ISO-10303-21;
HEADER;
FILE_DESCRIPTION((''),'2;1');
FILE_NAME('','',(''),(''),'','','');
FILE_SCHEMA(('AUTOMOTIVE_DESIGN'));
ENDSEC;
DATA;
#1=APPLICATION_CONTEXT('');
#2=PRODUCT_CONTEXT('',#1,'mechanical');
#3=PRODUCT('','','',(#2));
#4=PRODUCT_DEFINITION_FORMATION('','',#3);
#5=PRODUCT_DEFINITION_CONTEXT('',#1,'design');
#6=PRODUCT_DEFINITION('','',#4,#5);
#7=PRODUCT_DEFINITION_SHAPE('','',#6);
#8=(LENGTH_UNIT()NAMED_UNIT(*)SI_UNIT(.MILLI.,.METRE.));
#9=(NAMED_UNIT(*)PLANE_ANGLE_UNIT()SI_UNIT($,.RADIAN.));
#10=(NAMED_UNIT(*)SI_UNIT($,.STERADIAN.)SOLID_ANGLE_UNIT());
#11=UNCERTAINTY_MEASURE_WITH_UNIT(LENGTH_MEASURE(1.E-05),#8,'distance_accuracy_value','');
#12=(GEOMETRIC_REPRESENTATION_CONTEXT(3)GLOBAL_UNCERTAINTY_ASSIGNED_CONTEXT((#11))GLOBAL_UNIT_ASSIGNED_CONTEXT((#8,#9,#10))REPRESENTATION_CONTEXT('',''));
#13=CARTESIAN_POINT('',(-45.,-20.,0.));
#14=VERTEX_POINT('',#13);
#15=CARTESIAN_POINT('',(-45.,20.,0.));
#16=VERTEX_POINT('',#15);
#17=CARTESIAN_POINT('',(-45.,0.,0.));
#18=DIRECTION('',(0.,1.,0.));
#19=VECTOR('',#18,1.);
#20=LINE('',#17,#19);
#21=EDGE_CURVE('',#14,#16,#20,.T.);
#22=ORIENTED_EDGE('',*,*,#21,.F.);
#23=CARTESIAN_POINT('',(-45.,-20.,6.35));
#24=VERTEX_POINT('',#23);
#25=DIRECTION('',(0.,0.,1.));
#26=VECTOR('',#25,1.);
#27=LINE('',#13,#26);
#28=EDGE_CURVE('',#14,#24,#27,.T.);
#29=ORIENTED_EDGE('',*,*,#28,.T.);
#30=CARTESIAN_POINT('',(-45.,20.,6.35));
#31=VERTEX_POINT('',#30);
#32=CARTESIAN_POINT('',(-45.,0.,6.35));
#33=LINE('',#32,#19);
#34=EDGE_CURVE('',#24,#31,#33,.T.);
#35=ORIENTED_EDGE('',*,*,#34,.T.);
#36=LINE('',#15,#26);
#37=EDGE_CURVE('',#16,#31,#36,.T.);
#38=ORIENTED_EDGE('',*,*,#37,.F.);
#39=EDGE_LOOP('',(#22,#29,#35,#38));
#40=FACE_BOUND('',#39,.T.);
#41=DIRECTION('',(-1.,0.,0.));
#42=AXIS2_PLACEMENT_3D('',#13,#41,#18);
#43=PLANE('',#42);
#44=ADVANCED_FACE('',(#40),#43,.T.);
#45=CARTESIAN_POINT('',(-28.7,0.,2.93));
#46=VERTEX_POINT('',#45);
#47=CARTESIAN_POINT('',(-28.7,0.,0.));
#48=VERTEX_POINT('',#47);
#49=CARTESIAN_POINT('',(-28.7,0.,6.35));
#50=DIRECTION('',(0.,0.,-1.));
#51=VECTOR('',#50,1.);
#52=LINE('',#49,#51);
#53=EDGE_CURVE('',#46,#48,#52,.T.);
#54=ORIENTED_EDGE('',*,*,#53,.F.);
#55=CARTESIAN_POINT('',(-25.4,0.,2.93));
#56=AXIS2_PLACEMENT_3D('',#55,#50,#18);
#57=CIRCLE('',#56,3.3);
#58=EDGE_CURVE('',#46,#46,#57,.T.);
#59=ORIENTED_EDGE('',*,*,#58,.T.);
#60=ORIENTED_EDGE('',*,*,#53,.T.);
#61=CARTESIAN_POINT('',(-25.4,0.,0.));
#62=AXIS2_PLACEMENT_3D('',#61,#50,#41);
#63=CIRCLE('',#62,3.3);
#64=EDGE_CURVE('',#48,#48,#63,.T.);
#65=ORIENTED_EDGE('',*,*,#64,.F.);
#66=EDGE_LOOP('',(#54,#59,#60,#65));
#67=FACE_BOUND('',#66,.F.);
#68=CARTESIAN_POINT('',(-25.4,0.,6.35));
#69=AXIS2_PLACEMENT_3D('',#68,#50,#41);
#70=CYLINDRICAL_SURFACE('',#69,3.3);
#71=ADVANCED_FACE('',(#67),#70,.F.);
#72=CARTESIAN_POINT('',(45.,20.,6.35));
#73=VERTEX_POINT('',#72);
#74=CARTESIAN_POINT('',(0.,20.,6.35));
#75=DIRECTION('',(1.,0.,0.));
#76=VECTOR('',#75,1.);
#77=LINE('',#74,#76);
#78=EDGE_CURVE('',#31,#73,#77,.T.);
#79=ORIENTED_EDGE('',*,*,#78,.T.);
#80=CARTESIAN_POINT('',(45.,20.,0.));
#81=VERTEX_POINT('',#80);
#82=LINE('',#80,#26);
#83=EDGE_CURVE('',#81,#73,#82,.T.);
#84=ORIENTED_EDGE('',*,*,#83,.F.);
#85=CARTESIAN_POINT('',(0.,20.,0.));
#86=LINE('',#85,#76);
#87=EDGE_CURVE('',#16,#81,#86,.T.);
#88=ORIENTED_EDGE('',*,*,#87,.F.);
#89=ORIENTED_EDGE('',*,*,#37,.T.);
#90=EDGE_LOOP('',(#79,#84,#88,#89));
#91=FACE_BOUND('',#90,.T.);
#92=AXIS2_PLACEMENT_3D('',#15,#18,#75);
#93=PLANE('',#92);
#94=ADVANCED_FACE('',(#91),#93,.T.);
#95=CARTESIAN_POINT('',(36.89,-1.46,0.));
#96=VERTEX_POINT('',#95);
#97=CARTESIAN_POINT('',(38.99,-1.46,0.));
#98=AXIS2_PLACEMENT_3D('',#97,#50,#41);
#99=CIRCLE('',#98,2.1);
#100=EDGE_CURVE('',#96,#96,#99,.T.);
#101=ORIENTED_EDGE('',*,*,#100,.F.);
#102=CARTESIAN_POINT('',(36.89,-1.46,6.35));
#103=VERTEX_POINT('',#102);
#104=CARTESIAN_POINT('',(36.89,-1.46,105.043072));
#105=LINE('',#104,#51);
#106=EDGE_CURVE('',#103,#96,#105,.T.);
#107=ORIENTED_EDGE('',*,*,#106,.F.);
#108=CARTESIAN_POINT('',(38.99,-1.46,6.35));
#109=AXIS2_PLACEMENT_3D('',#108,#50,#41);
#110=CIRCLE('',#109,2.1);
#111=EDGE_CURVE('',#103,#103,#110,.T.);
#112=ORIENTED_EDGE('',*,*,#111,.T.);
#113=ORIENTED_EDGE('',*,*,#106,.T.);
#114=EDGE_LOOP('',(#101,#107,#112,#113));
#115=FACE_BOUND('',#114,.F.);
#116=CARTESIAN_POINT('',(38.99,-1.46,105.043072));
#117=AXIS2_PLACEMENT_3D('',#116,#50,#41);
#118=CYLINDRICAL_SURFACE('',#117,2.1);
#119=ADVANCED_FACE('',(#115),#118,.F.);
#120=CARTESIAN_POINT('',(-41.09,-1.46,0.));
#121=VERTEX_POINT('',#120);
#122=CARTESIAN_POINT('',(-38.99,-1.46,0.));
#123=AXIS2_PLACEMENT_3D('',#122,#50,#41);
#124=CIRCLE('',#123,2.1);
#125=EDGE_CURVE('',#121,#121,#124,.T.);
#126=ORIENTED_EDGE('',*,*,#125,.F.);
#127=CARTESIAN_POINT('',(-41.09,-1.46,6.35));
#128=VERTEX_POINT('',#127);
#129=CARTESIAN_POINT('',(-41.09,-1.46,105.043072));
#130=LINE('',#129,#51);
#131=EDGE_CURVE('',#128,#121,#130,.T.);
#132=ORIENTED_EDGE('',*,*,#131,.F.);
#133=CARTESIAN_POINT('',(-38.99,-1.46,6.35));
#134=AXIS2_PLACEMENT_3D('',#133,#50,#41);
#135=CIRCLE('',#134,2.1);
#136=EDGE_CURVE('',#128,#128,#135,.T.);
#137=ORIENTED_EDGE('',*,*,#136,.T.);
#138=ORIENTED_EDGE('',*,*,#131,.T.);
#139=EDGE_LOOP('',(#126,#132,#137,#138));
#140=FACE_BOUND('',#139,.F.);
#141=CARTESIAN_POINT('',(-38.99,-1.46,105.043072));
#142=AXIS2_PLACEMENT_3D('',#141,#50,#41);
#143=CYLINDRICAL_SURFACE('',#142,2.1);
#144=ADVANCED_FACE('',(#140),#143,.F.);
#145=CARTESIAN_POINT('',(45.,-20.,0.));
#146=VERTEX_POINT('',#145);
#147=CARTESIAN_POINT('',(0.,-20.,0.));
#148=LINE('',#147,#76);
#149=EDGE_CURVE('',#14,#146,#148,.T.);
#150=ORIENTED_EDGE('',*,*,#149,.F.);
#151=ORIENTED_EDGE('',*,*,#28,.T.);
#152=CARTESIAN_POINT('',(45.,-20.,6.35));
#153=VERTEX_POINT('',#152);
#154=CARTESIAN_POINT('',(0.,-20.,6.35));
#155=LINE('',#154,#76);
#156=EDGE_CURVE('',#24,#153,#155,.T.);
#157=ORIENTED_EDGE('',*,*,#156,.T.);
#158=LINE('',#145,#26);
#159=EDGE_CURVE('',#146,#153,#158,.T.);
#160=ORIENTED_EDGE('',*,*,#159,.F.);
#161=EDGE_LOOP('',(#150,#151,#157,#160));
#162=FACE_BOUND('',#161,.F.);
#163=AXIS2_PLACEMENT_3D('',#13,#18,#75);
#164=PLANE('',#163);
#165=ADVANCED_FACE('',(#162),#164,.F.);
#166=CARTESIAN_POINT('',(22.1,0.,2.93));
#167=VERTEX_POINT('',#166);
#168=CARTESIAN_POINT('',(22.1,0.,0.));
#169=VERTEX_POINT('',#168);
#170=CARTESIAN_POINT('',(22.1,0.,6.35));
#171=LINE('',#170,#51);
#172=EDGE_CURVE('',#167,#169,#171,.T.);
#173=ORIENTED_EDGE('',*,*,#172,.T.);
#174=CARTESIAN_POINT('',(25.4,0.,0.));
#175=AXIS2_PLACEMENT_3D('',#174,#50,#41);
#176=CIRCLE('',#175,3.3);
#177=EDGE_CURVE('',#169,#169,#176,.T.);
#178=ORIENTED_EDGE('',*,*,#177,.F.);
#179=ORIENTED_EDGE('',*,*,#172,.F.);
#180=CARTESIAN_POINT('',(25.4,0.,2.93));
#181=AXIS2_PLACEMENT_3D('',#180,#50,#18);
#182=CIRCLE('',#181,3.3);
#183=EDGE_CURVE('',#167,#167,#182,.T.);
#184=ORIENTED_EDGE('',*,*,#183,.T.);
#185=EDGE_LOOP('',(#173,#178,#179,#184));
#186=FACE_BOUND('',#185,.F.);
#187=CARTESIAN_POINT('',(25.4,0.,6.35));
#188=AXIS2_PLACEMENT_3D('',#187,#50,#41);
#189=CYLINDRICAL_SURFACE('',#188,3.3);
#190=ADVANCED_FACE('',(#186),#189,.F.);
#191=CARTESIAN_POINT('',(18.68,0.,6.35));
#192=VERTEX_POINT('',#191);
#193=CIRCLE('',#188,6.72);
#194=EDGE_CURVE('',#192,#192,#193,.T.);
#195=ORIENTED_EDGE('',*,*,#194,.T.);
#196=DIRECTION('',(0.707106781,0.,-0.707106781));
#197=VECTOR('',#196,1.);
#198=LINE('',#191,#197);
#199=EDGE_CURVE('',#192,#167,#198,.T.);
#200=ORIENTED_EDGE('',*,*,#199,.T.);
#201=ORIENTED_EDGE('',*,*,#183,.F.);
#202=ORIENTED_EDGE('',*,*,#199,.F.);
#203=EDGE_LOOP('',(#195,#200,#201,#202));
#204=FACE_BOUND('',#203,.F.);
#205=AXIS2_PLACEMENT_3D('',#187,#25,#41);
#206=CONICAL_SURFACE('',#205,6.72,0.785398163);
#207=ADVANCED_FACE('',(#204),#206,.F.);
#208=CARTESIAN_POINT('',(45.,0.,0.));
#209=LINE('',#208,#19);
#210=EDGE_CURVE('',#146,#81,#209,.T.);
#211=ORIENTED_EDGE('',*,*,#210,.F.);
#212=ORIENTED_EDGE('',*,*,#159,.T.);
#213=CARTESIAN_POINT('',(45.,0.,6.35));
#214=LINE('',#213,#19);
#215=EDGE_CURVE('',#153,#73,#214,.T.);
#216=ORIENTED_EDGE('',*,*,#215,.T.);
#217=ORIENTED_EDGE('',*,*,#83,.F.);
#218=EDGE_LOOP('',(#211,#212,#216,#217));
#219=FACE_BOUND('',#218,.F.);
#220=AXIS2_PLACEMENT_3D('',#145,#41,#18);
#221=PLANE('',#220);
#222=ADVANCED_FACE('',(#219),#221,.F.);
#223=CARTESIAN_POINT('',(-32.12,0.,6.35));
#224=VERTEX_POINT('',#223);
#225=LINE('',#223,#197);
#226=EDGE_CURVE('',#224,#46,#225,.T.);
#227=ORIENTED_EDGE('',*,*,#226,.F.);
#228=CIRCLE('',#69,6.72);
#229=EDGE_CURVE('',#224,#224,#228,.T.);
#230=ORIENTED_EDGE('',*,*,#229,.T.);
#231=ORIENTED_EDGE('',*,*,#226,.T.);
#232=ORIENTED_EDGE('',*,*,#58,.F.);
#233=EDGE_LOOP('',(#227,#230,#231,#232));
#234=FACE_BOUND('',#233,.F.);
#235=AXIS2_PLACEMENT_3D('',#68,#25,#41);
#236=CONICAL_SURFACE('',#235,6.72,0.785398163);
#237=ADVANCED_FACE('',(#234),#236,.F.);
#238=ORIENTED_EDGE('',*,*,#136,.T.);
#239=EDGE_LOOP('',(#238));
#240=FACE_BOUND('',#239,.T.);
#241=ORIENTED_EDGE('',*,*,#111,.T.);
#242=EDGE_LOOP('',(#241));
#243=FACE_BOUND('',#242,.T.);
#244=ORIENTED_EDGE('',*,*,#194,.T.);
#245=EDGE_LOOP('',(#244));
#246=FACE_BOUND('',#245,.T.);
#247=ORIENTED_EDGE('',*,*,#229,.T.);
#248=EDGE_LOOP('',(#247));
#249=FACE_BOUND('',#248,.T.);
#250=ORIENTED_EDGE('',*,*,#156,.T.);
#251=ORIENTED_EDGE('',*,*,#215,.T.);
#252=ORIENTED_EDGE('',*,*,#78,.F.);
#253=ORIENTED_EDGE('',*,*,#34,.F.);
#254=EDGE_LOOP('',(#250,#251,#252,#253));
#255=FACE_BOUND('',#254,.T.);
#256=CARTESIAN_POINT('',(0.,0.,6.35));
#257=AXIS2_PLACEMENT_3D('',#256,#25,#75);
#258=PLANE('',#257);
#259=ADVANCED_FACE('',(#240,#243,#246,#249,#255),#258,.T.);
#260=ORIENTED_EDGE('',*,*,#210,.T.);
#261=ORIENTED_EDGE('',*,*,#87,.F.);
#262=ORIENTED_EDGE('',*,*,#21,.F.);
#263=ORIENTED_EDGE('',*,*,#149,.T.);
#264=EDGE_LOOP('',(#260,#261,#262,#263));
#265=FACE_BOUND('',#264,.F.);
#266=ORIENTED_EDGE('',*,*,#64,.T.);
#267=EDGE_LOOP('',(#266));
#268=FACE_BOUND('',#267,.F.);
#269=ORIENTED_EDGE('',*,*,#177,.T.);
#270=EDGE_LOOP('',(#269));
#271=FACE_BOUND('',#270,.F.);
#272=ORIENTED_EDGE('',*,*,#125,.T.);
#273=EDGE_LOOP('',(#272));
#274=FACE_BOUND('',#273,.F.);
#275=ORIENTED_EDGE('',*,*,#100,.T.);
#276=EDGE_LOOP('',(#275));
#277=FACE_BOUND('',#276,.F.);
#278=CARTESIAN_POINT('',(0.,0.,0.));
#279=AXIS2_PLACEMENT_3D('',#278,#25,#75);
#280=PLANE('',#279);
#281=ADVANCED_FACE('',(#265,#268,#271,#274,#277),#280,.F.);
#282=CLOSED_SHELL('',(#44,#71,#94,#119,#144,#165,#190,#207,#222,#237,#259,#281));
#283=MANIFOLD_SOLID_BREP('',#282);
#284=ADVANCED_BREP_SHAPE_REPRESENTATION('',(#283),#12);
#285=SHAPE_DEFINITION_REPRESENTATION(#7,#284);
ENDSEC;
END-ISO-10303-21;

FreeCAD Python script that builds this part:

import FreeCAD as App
import Part
import Sketcher
from FreeCAD import Vector
Q = App.Units.Quantity


def add_polygon(sketch, points):
    """Adds a closed chain of lines whose ends are joined by coincident constraints."""
    first, n = sketch.GeometryCount, len(points)
    for a, b in zip(points, points[1:] + points[:1]):
        sketch.addGeometry(Part.LineSegment(App.Vector(*a, 0), App.Vector(*b, 0)), False)
    for i in range(n):
        sketch.addConstraint(Sketcher.Constraint("Coincident", first + i, 2, first + (i + 1) % n, 1))

doc = App.newDocument("Part")
params = doc.addObject("Spreadsheet::Sheet", "Params")
for row, (alias, value) in enumerate([
    ("sketch1_width", "90 mm"),
    ("sketch1_height", "40 mm"),
    ("pad1_length", "6.35 mm"),
    ("sketch2_diameter", "4.2 mm"),
    ("hole_diameter", "4.2 mm"),
    ("sketch3_diameter", "6.6 mm"),
    ("hole2_diameter", "6.6 mm"),
    ("hole2_csink_diameter", "13.44 mm"),
], start=1):
    params.set(f"A{row}", alias)
    params.set(f"B{row}", "=" + value)
    params.setAlias(f"B{row}", alias)

body = doc.addObject("PartDesign::Body", "Body")

# Sketch on XY plane
sketch1 = doc.addObject("Sketcher::SketchObject", "Sketch")
body.addObject(sketch1)
sketch1.AttachmentSupport = (doc.XY_Plane, [""])
sketch1.MapMode = "FlatFace"
add_polygon(sketch1, [(-45, 20), (-45, -20), (45, -20), (45, 20)])  # lines 0-3
sketch1.addConstraint([
    Sketcher.Constraint("Vertical", 0),
    Sketcher.Constraint("Horizontal", 1),
    Sketcher.Constraint("Vertical", 2),
    Sketcher.Constraint("Horizontal", 3),
    Sketcher.Constraint("Symmetric", 0, 2, 2, 2, -1, 1),
    Sketcher.Constraint("DistanceX", 1, 1, 1, 2, Q("90 mm")),
    Sketcher.Constraint("DistanceY", 0, 2, 0, 1, Q("40 mm")),
])
sketch1.setExpression("Constraints[9]", "Params.sketch1_width")
sketch1.setExpression("Constraints[10]", "Params.sketch1_height")
pad1 = doc.addObject("PartDesign::Pad", "Pad")
body.addObject(pad1)
pad1.Profile = sketch1
pad1.setExpression("Length", "Params.pad1_length")

# Sketch on XY plane
sketch2 = doc.addObject("Sketcher::SketchObject", "Sketch001")
body.addObject(sketch2)
sketch2.AttachmentSupport = (doc.XY_Plane, [""])
sketch2.MapMode = "FlatFace"
sketch2.AttachmentOffset = App.Placement(Vector(0, 0, 6.35), App.Rotation())
sketch2.addGeometry([
    Part.Circle(Vector(-39, -1.5, 0), Vector(0, 0, 1), 2.1),
    Part.Circle(Vector(39, -1.5, 0), Vector(0, 0, 1), 2.1),
], False)
sketch2.addConstraint([
    Sketcher.Constraint("Equal", 0, 1),
    Sketcher.Constraint("Symmetric", 0, 3, 1, 3, -2),
    Sketcher.Constraint("Diameter", 0, Q("4.2 mm")),
    Sketcher.Constraint("DistanceX", 0, 3, -1, 1, Q("38.99 mm")),
    Sketcher.Constraint("DistanceY", 0, 3, -1, 1, Q("1.46 mm")),
])
sketch2.setExpression("Constraints[2]", "Params.sketch2_diameter")
doc.recompute()
hole = doc.addObject("PartDesign::Hole", "Hole")
body.addObject(hole)
hole.Profile = sketch2
hole.ThreadType = "None"
hole.setExpression("Diameter", "Params.hole_diameter")
hole.DepthType = "ThroughAll"

# Sketch on XY plane
sketch3 = doc.addObject("Sketcher::SketchObject", "Sketch002")
body.addObject(sketch3)
sketch3.AttachmentSupport = (doc.XY_Plane, [""])
sketch3.MapMode = "FlatFace"
sketch3.AttachmentOffset = App.Placement(Vector(0, 0, 6.35), App.Rotation())
sketch3.addGeometry([
    Part.Circle(Vector(-25.4, 0, 0), Vector(0, 0, 1), 3.3),
    Part.Circle(Vector(25.4, 0, 0), Vector(0, 0, 1), 3.3),
], False)
sketch3.addConstraint([
    Sketcher.Constraint("Equal", 0, 1),
    Sketcher.Constraint("Symmetric", 0, 3, 1, 3, -1, 1),
    Sketcher.Constraint("PointOnObject", 0, 3, -1),
    Sketcher.Constraint("Diameter", 0, Q("6.6 mm")),
    Sketcher.Constraint("DistanceX", 0, 3, -1, 1, Q("25.4 mm")),
])
sketch3.setExpression("Constraints[3]", "Params.sketch3_diameter")
doc.recompute()
hole2 = doc.addObject("PartDesign::Hole", "Hole001")
body.addObject(hole2)
hole2.Profile = sketch3
hole2.ThreadType = "None"
hole2.setExpression("Diameter", "Params.hole2_diameter")
hole2.DepthType = "ThroughAll"
hole2.HoleCutType = "Countersink"
hole2.setExpression("HoleCutDiameter", "Params.hole2_csink_diameter")
hole2.HoleCutCountersinkAngle = 90

doc.recompute()
